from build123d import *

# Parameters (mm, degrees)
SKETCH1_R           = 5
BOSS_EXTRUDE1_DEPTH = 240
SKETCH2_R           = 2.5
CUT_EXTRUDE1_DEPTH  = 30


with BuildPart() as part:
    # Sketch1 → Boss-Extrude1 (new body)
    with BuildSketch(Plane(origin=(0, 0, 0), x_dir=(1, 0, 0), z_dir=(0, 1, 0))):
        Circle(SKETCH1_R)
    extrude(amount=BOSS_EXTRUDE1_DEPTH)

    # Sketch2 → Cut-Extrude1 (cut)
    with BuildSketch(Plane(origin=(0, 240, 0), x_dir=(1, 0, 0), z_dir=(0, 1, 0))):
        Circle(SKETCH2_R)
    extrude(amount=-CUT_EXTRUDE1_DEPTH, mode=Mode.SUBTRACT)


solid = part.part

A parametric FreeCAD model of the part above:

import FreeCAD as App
import Part
import Sketcher

doc = App.newDocument("Part")
body = doc.addObject("PartDesign::Body", "Body")

# Sketch on XZ plane
sketch1 = body.newObject("Sketcher::SketchObject", "Sketch")
sketch1.AttachmentSupport = (doc.getObject("XZ_Plane"), [""])
sketch1.MapMode = "FlatFace"
sketch1.addGeometry(Part.Circle(App.Vector(0, 0, 0), App.Vector(0, 0, 1), 5), False)
sketch1.addConstraint(Sketcher.Constraint("Coincident", 0, 3, -1, 1))
sketch1.addConstraint(Sketcher.Constraint("Diameter", 0, 10.0))
pad1 = body.newObject("PartDesign::Pad", "Pad")
pad1.Profile = sketch1
pad1.Length = 240
pad1.Reversed = True

# Sketch on XZ plane
sketch2 = body.newObject("Sketcher::SketchObject", "Sketch001")
sketch2.AttachmentSupport = (doc.getObject("XZ_Plane"), [""])
sketch2.MapMode = "FlatFace"
sketch2.AttachmentOffset = App.Placement(App.Vector(0, 0, -240), App.Rotation())
sketch2.addGeometry(Part.Circle(App.Vector(0, 0, 0), App.Vector(0, 0, 1), 2.5), False)
sketch2.addConstraint(Sketcher.Constraint("Coincident", 0, 3, -1, 1))
sketch2.addConstraint(Sketcher.Constraint("Diameter", 0, 5.0))
pocket1 = body.newObject("PartDesign::Pocket", "Pocket")
pocket1.Profile = sketch2
pocket1.Length = 30
pocket1.Reversed = True

doc.recompute()
